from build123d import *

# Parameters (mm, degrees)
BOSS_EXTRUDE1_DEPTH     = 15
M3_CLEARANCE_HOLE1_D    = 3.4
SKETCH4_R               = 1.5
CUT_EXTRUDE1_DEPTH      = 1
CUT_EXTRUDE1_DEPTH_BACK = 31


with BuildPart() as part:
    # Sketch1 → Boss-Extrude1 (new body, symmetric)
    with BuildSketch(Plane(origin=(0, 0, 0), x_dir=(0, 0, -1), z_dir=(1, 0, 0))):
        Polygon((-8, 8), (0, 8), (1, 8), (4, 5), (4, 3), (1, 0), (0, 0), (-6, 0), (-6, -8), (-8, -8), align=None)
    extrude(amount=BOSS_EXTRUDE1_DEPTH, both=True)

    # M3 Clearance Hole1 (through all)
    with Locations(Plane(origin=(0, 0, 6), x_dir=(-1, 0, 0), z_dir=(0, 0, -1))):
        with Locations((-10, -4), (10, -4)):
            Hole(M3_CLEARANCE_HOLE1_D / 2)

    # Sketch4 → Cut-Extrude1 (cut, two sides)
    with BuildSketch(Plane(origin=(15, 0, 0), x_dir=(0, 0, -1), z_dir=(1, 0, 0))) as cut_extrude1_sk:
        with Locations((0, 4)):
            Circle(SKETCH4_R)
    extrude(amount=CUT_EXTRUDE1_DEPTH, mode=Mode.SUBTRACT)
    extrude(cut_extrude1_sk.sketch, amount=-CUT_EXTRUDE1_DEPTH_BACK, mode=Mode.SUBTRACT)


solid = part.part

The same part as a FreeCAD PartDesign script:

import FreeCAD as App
import Part
import Sketcher

V = App.Vector

doc = App.newDocument("Part")
body = doc.addObject("PartDesign::Body", "Body")

sketch1 = body.newObject("Sketcher::SketchObject", "Sketch")
sketch1.AttachmentSupport = (doc.getObject("YZ_Plane"), [""])
sketch1.MapMode = "FlatFace"
sketch1.addGeometry([
    Part.LineSegment(V(8, -1, 0), V(8, 8, 0)),
    Part.LineSegment(V(8, 8, 0), V(-8, 8, 0)),
    Part.LineSegment(V(-8, 8, 0), V(-8, 6, 0)),
    Part.LineSegment(V(-8, 6, 0), V(0, 6, 0)),
    Part.LineSegment(V(0, 6, 0), V(0, -1, 0)),
    Part.LineSegment(V(0, -1, 0), V(3, -4, 0)),
    Part.LineSegment(V(3, -4, 0), V(5, -4, 0)),
    Part.LineSegment(V(5, -4, 0), V(8, -1, 0)),
], False)
sketch1.addConstraint([
    Sketcher.Constraint("Coincident", 0, 2, 1, 1),
    Sketcher.Constraint("Coincident", 1, 2, 2, 1),
    Sketcher.Constraint("Coincident", 2, 2, 3, 1),
    Sketcher.Constraint("Coincident", 3, 2, 4, 1),
    Sketcher.Constraint("Coincident", 4, 2, 5, 1),
    Sketcher.Constraint("Coincident", 5, 2, 6, 1),
    Sketcher.Constraint("Coincident", 6, 2, 7, 1),
    Sketcher.Constraint("Coincident", 7, 2, 0, 1),
    Sketcher.Constraint("Vertical", 0),
    Sketcher.Constraint("Horizontal", 1),
    Sketcher.Constraint("Vertical", 2),
    Sketcher.Constraint("Horizontal", 3),
    Sketcher.Constraint("Vertical", 4),
    Sketcher.Constraint("Horizontal", 6),
    Sketcher.Constraint("PointOnObject", 3, 2, -2),
    Sketcher.Constraint("Perpendicular", 5, 7),
    Sketcher.Constraint("Horizontal", 4, 2, 7, 2),
    Sketcher.Constraint("Equal", 6, 2),
    Sketcher.Constraint("Equal", 5, 7),
    Sketcher.Constraint("DistanceX", 1, 2, 1, 1, 16.0),
    Sketcher.Constraint("DistanceX", 3, 1, 3, 2, 8.0),
    Sketcher.Constraint("DistanceX", 6, 1, 6, 2, 2.0),
    Sketcher.Constraint("DistanceY", 0, 1, 0, 2, 9.0),
    Sketcher.Constraint("DistanceY", -1, 1, 0, 2, 8.0),
])
pad1 = body.newObject("PartDesign::Pad", "Pad")
pad1.Profile = sketch1
pad1.Length = 30
pad1.Midplane = True

sketch2 = body.newObject("Sketcher::SketchObject", "Sketch001")
sketch2.AttachmentSupport = (doc.getObject("XY_Plane"), [""])
sketch2.MapMode = "FlatFace"
sketch2.AttachmentOffset = App.Placement(V(0, 0, 6), App.Rotation())
sketch2.addGeometry([
    Part.Circle(V(10, -4, 0), V(0, 0, 1), 1.7),
    Part.Circle(V(-10, -4, 0), V(0, 0, 1), 1.7),
], False)
sketch2.addConstraint([
    Sketcher.Constraint("Equal", 0, 1),
    Sketcher.Constraint("Symmetric", 0, 3, 1, 3, -2),
    Sketcher.Constraint("Diameter", 0, 3.4),
    Sketcher.Constraint("DistanceX", -1, 1, 0, 3, 10.0),
    Sketcher.Constraint("DistanceY", 0, 3, -1, 1, 4.0),
])
doc.recompute()
hole = body.newObject("PartDesign::Hole", "Hole")
hole.Profile = sketch2
hole.ThreadType = "None"
hole.Diameter = 3.4
hole.DepthType = "ThroughAll"
hole.Reversed = True

sketch3 = body.newObject("Sketcher::SketchObject", "Sketch002")
sketch3.AttachmentSupport = (doc.getObject("YZ_Plane"), [""])
sketch3.MapMode = "FlatFace"
sketch3.AttachmentOffset = App.Placement(V(0, 0, 15), App.Rotation())
sketch3.addGeometry(Part.Circle(V(4, 0, 0), V(0, 0, 1), 1.5), False)
sketch3.addConstraint([
    Sketcher.Constraint("PointOnObject", 0, 3, -1),
    Sketcher.Constraint("Diameter", 0, 3.0),
    Sketcher.Constraint("DistanceX", -1, 1, 0, 3, 4.0),
])
pocket1 = body.newObject("PartDesign::Pocket", "Pocket")
pocket1.Profile = sketch3
pocket1.Type = "ThroughAll"
pocket1.Midplane = True

doc.recompute()
